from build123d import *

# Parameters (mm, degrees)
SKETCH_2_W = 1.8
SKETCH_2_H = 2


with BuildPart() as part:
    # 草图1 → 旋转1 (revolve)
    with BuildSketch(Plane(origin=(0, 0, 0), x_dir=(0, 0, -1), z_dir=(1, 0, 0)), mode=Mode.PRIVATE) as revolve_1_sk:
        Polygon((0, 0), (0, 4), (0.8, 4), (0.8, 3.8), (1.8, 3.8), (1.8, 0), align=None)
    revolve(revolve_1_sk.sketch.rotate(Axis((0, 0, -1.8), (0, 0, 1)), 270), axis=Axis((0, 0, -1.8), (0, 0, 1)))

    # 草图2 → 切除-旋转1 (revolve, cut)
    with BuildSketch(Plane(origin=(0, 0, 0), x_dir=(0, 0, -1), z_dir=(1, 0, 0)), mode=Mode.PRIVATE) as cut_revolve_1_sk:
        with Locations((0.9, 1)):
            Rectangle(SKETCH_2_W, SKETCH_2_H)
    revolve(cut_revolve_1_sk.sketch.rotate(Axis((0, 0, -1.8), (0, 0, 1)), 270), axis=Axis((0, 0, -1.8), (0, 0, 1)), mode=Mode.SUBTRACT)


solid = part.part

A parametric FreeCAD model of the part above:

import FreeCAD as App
import Part
import Sketcher
Q = App.Units.Quantity


def add_polygon(sketch, points):
    """Adds a closed chain of lines whose ends are joined by coincident constraints."""
    first, n = sketch.GeometryCount, len(points)
    for a, b in zip(points, points[1:] + points[:1]):
        sketch.addGeometry(Part.LineSegment(App.Vector(*a, 0), App.Vector(*b, 0)), False)
    for i in range(n):
        sketch.addConstraint(Sketcher.Constraint("Coincident", first + i, 2, first + (i + 1) % n, 1))

doc = App.newDocument("Part")
body = doc.addObject("PartDesign::Body", "Body")

# Sketch on YZ plane
sketch1 = body.newObject("Sketcher::SketchObject", "Sketch")
sketch1.AttachmentSupport = (doc.getObject("YZ_Plane"), [""])
sketch1.MapMode = "FlatFace"
add_polygon(sketch1, [(4, 0), (0, 0), (0, -1.8), (3.8, -1.8), (3.8, -0.8), (4, -0.8)])  # lines 0-5
sketch1.addConstraint([
    Sketcher.Constraint("Horizontal", 0),
    Sketcher.Constraint("Vertical", 1),
    Sketcher.Constraint("Horizontal", 2),
    Sketcher.Constraint("Vertical", 3),
    Sketcher.Constraint("Horizontal", 4),
    Sketcher.Constraint("Vertical", 5),
    Sketcher.Constraint("Coincident", 0, 2, -1, 1),
    Sketcher.Constraint("DistanceX", 0, 2, 0, 1, Q("4 mm")),
    Sketcher.Constraint("DistanceY", 3, 1, 3, 2, Q("1 mm")),
    Sketcher.Constraint("DistanceX", 2, 1, 2, 2, Q("3.8 mm")),
    Sketcher.Constraint("DistanceY", 1, 2, 1, 1, Q("1.8 mm")),
])
revolution = body.newObject("PartDesign::Revolution", "Revolution")
revolution.Profile = sketch1
revolution.ReferenceAxis = (sketch1, ["V_Axis"])
revolution.Angle = 360

# Sketch on YZ plane
sketch2 = body.newObject("Sketcher::SketchObject", "Sketch001")
sketch2.AttachmentSupport = (doc.getObject("YZ_Plane"), [""])
sketch2.MapMode = "FlatFace"
add_polygon(sketch2, [(2, 0), (0, 0), (0, -1.8), (2, -1.8)])  # lines 0-3
sketch2.addConstraint([
    Sketcher.Constraint("Horizontal", 0),
    Sketcher.Constraint("Vertical", 1),
    Sketcher.Constraint("Horizontal", 2),
    Sketcher.Constraint("Vertical", 3),
    Sketcher.Constraint("Coincident", 0, 2, -1, 1),
    Sketcher.Constraint("DistanceX", 0, 2, 0, 1, Q("2 mm")),
    Sketcher.Constraint("DistanceY", 1, 2, 1, 1, Q("1.8 mm")),
])
groove = body.newObject("PartDesign::Groove", "Groove")
groove.Profile = sketch2
groove.ReferenceAxis = (sketch2, ["V_Axis"])
groove.Angle = 360

doc.recompute()
